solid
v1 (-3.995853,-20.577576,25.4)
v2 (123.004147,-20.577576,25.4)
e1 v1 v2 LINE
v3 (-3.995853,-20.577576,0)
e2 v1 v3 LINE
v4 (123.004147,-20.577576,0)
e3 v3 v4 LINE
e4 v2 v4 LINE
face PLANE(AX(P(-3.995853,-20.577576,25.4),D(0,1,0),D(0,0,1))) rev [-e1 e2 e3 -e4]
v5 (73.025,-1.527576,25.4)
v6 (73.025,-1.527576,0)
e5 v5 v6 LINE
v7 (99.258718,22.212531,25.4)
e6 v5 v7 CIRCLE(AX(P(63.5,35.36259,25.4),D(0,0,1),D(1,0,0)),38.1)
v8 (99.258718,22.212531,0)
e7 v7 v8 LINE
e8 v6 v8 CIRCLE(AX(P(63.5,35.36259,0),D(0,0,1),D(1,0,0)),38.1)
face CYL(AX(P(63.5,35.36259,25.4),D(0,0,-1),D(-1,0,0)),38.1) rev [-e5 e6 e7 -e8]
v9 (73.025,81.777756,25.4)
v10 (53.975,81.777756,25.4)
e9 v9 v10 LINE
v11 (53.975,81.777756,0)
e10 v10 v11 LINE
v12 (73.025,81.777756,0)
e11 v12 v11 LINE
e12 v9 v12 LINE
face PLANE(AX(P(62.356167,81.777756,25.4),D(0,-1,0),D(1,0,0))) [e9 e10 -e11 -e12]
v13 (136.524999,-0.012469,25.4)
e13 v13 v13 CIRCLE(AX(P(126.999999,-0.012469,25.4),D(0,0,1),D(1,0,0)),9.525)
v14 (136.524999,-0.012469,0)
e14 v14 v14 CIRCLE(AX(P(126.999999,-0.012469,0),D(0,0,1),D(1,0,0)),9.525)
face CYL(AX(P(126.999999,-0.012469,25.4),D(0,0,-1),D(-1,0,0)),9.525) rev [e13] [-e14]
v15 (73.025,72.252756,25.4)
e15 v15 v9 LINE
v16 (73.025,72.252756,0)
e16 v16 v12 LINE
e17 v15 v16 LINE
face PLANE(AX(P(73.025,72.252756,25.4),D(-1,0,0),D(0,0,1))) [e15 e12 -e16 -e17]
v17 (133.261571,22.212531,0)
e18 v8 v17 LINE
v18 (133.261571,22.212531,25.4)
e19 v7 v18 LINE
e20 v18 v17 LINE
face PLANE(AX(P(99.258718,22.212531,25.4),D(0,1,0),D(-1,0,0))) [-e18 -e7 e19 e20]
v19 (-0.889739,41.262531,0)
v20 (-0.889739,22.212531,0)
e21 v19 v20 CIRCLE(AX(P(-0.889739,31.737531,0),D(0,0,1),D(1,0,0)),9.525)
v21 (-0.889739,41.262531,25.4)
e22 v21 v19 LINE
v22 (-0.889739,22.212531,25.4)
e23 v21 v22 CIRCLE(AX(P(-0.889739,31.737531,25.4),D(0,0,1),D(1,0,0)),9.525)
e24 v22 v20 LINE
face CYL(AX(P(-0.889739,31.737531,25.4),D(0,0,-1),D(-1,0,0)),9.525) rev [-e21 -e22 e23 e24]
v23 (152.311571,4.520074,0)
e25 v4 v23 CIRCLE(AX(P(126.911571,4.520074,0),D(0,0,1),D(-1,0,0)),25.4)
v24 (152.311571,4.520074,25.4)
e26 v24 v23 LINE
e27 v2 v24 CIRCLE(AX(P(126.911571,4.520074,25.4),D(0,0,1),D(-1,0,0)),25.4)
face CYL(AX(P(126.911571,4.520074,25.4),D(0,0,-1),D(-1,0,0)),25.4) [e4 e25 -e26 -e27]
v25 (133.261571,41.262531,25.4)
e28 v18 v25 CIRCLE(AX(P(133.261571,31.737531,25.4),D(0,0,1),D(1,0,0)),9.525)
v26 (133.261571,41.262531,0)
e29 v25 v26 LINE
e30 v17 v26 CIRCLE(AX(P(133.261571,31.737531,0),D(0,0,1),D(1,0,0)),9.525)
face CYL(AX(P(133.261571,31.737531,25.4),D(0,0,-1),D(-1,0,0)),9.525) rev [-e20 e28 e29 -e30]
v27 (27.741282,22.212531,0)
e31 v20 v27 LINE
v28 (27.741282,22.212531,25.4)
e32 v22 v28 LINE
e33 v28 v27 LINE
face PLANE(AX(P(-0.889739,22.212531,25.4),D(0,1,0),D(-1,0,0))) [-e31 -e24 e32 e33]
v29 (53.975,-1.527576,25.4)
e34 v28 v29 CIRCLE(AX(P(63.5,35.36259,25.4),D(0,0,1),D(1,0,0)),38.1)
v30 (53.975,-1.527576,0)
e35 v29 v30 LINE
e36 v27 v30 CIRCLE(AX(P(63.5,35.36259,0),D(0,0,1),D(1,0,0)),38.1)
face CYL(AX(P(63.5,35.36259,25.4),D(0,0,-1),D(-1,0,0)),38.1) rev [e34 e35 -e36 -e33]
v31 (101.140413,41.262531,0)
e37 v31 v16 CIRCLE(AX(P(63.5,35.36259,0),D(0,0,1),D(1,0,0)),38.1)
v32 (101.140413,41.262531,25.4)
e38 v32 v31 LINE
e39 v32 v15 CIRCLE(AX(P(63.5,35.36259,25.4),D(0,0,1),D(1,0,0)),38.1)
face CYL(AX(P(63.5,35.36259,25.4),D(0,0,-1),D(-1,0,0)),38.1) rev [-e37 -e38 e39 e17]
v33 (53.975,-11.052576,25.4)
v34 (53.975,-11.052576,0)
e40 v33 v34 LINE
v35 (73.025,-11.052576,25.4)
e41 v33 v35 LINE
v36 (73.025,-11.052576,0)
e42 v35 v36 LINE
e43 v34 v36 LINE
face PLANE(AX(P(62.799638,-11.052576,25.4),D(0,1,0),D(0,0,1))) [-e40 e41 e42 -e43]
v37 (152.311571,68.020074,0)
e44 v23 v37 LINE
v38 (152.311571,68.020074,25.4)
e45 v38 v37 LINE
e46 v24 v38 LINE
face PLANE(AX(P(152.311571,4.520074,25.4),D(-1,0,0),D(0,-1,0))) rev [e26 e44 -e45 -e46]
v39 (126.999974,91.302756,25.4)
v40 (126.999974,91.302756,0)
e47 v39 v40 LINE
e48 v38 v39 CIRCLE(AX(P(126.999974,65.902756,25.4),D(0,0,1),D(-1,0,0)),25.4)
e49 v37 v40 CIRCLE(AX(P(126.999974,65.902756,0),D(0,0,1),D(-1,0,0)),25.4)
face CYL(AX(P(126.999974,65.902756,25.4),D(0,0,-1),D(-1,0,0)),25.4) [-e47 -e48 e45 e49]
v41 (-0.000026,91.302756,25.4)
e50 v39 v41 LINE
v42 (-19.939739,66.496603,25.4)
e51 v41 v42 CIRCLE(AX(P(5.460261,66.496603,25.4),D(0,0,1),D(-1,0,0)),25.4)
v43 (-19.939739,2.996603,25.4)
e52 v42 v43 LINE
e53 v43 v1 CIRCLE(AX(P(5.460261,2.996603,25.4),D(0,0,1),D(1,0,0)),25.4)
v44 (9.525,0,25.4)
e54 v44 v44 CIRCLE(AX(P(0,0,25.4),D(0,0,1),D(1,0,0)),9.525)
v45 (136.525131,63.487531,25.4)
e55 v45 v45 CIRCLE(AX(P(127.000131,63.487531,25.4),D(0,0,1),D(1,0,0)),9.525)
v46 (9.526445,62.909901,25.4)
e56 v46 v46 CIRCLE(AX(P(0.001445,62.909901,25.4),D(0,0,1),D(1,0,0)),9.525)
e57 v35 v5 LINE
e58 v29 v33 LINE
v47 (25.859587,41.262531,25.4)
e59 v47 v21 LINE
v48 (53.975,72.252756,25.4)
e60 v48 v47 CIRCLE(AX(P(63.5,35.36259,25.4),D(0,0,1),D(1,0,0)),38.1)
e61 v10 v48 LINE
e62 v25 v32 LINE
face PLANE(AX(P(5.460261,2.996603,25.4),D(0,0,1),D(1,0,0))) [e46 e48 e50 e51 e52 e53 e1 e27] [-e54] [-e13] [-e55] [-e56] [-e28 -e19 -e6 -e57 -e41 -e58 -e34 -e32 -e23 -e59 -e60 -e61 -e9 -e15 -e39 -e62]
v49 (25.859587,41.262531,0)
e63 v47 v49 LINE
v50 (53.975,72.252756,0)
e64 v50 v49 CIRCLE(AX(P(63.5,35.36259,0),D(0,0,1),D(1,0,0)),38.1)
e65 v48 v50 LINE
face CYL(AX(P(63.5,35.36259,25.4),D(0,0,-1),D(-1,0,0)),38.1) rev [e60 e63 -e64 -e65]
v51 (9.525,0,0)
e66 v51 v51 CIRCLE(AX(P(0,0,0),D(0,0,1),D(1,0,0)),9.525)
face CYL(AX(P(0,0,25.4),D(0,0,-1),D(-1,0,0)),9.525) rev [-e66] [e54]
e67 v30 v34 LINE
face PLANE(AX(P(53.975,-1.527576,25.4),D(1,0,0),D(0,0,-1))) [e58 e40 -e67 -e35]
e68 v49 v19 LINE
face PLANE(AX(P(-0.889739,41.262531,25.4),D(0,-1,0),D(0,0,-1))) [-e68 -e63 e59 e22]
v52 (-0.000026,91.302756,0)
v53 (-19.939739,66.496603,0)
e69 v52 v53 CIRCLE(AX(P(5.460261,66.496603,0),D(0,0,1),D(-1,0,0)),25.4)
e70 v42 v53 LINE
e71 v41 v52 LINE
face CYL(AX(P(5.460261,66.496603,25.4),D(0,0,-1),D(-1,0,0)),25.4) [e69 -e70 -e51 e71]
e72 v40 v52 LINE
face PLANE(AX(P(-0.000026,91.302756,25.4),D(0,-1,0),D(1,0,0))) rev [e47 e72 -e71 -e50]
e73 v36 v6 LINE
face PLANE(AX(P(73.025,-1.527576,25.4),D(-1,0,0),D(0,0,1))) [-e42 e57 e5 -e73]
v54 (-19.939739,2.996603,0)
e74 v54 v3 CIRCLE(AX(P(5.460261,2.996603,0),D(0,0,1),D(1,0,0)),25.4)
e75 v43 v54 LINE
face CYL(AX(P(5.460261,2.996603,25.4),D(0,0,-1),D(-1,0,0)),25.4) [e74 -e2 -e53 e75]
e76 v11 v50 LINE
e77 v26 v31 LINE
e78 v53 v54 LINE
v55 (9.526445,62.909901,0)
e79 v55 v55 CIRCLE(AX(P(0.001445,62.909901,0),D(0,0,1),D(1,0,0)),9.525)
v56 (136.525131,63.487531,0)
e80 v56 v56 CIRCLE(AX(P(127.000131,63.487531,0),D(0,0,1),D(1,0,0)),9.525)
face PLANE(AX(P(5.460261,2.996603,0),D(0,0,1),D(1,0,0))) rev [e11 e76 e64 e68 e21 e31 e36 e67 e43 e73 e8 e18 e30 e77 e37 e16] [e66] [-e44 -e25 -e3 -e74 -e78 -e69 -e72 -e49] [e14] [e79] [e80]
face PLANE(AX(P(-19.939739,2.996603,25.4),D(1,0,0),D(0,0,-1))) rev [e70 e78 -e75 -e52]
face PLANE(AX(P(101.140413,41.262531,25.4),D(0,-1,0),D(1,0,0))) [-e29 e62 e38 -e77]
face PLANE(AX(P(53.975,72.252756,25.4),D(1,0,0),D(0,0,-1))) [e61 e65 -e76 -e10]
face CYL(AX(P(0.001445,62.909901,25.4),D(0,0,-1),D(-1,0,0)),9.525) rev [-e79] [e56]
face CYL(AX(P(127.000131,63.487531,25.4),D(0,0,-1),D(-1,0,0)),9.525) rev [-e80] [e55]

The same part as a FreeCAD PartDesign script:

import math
import FreeCAD as App
import Part
import Sketcher

V = App.Vector
Q = App.Units.Quantity

doc = App.newDocument("Part")
body = doc.addObject("PartDesign::Body", "Body")

# Sketch on XY plane
sketch1 = body.newObject("Sketcher::SketchObject", "Sketch")
sketch1.AttachmentSupport = (doc.getObject("XY_Plane"), [""])
sketch1.MapMode = "FlatFace"
sketch1.addGeometry([
    Part.LineSegment(V(-4, -21, 0), V(123, -21, 0)),  # 0
    Part.ArcOfCircle(Part.Circle(V(127, 5, 0), V(0, 0, 1), 25), math.radians(-99), math.radians(0)),  # 1
    Part.LineSegment(V(152, 5, 0), V(152, 68, 0)),  # 2
    Part.ArcOfCircle(Part.Circle(V(127, 66, 0), V(0, 0, 1), 25), math.radians(5), math.radians(90)),  # 3
    Part.LineSegment(V(127, 91, 0), V(0, 91, 0)),  # 4
    Part.ArcOfCircle(Part.Circle(V(5, 66, 0), V(0, 0, 1), 25), math.radians(102), math.radians(180)),  # 5
    Part.LineSegment(V(-20, 66, 0), V(-20, 3, 0)),  # 6
    Part.ArcOfCircle(Part.Circle(V(5, 3, 0), V(0, 0, 1), 25), math.radians(180), math.radians(248)),  # 7
    Part.Circle(V(0, 0, 0), V(0, 0, 1), 10),  # 8
    Part.Circle(V(127, 0, 0), V(0, 0, 1), 10),  # 9
    Part.Circle(V(0, 63, 0), V(0, 0, 1), 10),  # 10
    Part.ArcOfCircle(Part.Circle(V(-1, 32, 0), V(0, 0, 1), 10), math.radians(90), math.radians(270)),  # 11
    Part.LineSegment(V(-1, 41, 0), V(26, 41, 0)),  # 12
    Part.ArcOfCircle(Part.Circle(V(64, 35, 0), V(0, 0, 1), 38), math.radians(104), math.radians(171)),  # 13
    Part.LineSegment(V(54, 72, 0), V(54, 82, 0)),  # 14
    Part.LineSegment(V(54, 82, 0), V(73, 82, 0)),  # 15
    Part.LineSegment(V(73, 82, 0), V(73, 72, 0)),  # 16
    Part.ArcOfCircle(Part.Circle(V(64, 35, 0), V(0, 0, 1), 38), math.radians(9), math.radians(76)),  # 17
    Part.LineSegment(V(101, 41, 0), V(133, 41, 0)),  # 18
    Part.ArcOfCircle(Part.Circle(V(133, 32, 0), V(0, 0, 1), 10), math.radians(-90), math.radians(90)),  # 19
    Part.LineSegment(V(133, 22, 0), V(99, 22, 0)),  # 20
    Part.ArcOfCircle(Part.Circle(V(64, 35, 0), V(0, 0, 1), 38), math.radians(-76), math.radians(-20)),  # 21
    Part.LineSegment(V(73, -2, 0), V(73, -11, 0)),  # 22
    Part.LineSegment(V(73, -11, 0), V(54, -11, 0)),  # 23
    Part.LineSegment(V(54, -11, 0), V(54, -2, 0)),  # 24
    Part.ArcOfCircle(Part.Circle(V(64, 35, 0), V(0, 0, 1), 38), math.radians(-160), math.radians(-104)),  # 25
    Part.LineSegment(V(28, 22, 0), V(-1, 22, 0)),  # 26
    Part.Circle(V(127, 63, 0), V(0, 0, 1), 10),  # 27
], False)
sketch1.addConstraint([
    Sketcher.Constraint("Coincident", 0, 2, 1, 1),
    Sketcher.Constraint("Tangent", 1, 2, 2, 1),
    Sketcher.Constraint("Coincident", 2, 2, 3, 1),
    Sketcher.Constraint("Tangent", 3, 2, 4, 1),
    Sketcher.Constraint("Coincident", 4, 2, 5, 1),
    Sketcher.Constraint("Tangent", 5, 2, 6, 1),
    Sketcher.Constraint("Tangent", 6, 2, 7, 1),
    Sketcher.Constraint("Coincident", 7, 2, 0, 1),
    Sketcher.Constraint("Tangent", 11, 1, 12, 1),
    Sketcher.Constraint("Coincident", 12, 2, 13, 2),
    Sketcher.Constraint("Coincident", 13, 1, 14, 1),
    Sketcher.Constraint("Coincident", 14, 2, 15, 1),
    Sketcher.Constraint("Coincident", 15, 2, 16, 1),
    Sketcher.Constraint("Coincident", 16, 2, 17, 2),
    Sketcher.Constraint("Coincident", 17, 1, 18, 1),
    Sketcher.Constraint("Tangent", 18, 2, 19, 2),
    Sketcher.Constraint("Tangent", 19, 1, 20, 1),
    Sketcher.Constraint("Coincident", 20, 2, 21, 2),
    Sketcher.Constraint("Coincident", 21, 1, 22, 1),
    Sketcher.Constraint("Coincident", 22, 2, 23, 1),
    Sketcher.Constraint("Coincident", 23, 2, 24, 1),
    Sketcher.Constraint("Coincident", 24, 2, 25, 2),
    Sketcher.Constraint("Coincident", 25, 1, 26, 1),
    Sketcher.Constraint("Tangent", 26, 2, 11, 2),
    Sketcher.Constraint("Horizontal", 0),
    Sketcher.Constraint("Vertical", 2),
    Sketcher.Constraint("Horizontal", 4),
    Sketcher.Constraint("Vertical", 6),
    Sketcher.Constraint("Horizontal", 12),
    Sketcher.Constraint("Vertical", 14),
    Sketcher.Constraint("Horizontal", 15),
    Sketcher.Constraint("Vertical", 16),
    Sketcher.Constraint("Horizontal", 18),
    Sketcher.Constraint("Horizontal", 20),
    Sketcher.Constraint("Vertical", 22),
    Sketcher.Constraint("Horizontal", 23),
    Sketcher.Constraint("Vertical", 24),
    Sketcher.Constraint("Horizontal", 26),
    Sketcher.Constraint("Coincident", 8, 3, -1, 1),
    Sketcher.Constraint("Coincident", 17, 3, 13, 3),
    Sketcher.Constraint("Coincident", 21, 3, 13, 3),
    Sketcher.Constraint("Coincident", 25, 3, 13, 3),
    Sketcher.Constraint("Equal", 1, 3),
    Sketcher.Constraint("Equal", 3, 5),
    Sketcher.Constraint("Equal", 5, 7),
    Sketcher.Constraint("Equal", 8, 9),
    Sketcher.Constraint("Equal", 9, 10),
    Sketcher.Constraint("Equal", 10, 11),
    Sketcher.Constraint("Equal", 13, 17),
    Sketcher.Constraint("Equal", 11, 19),
    Sketcher.Constraint("Equal", 17, 21),
    Sketcher.Constraint("Equal", 21, 25),
    Sketcher.Constraint("Equal", 19, 27),
    Sketcher.Constraint("Horizontal", 11, 3, 19, 3),
    Sketcher.Constraint("Horizontal", 13, 1, 16, 2),
    Sketcher.Constraint("Horizontal", 21, 1, 24, 2),
    Sketcher.Constraint("Vertical", 16, 2, 21, 1),
    Sketcher.Constraint("Equal", 0, 4),
    Sketcher.Constraint("Equal", 2, 6),
    Sketcher.Constraint("Equal", 16, 22),
    Sketcher.Constraint("Radius", 1, Q("1 in")),
    Sketcher.Constraint("Radius", 13, Q("1.5 in")),
    Sketcher.Constraint("Diameter", 8, Q("0.75 in")),
    Sketcher.Constraint("DistanceX", 0, 1, 0, 2, Q("5 in")),
    Sketcher.Constraint("DistanceY", 2, 1, 2, 2, Q("2.5 in")),
    Sketcher.Constraint("DistanceX", -1, 1, 9, 3, Q("5 in")),
    Sketcher.Constraint("DistanceX", 15, 1, 15, 2, Q("0.75 in")),
    Sketcher.Constraint("DistanceX", -1, 1, 13, 3, Q("2.5 in")),
    Sketcher.Constraint("DistanceY", 9, 3, 27, 3, Q("2.5 in")),
    Sketcher.Constraint("DistanceY", 14, 1, 14, 2, Q("0.375 in")),
    Sketcher.Constraint("DistanceX", 11, 3, 7, 3, Q("0.25 in")),
    Sketcher.Constraint("DistanceX", 1, 3, 19, 3, Q("0.25 in")),
    Sketcher.Constraint("DistanceY", 9, 3, 19, 3, Q("1.25 in")),
    Sketcher.Constraint("DistanceX", 18, 1, 18, 2, Q("32.121158 mm")),
    Sketcher.Constraint("DistanceX", 26, 2, 26, 1, Q("28.631021 mm")),
    Sketcher.Constraint("DistanceY", -1, 1, 10, 3, Q("62.909901 mm")),
    Sketcher.Constraint("DistanceY", 10, 3, 5, 3, Q("3.586701 mm")),
    Sketcher.Constraint("DistanceX", 12, 1, 12, 2, Q("26.749326 mm")),
    Sketcher.Constraint("DistanceY", 9, 3, -1, 1, Q("0.012469 mm")),
    Sketcher.Constraint("DistanceX", -1, 1, 27, 3, Q("127.000131 mm")),
    Sketcher.Constraint("DistanceY", 1, 3, 5, 3, Q("61.976529 mm")),
    Sketcher.Constraint("DistanceX", 10, 3, 3, 3, Q("126.998529 mm")),
])
pad1 = body.newObject("PartDesign::Pad", "Pad")
pad1.Profile = sketch1
pad1.Length = Q("1 in")

doc.recompute()
